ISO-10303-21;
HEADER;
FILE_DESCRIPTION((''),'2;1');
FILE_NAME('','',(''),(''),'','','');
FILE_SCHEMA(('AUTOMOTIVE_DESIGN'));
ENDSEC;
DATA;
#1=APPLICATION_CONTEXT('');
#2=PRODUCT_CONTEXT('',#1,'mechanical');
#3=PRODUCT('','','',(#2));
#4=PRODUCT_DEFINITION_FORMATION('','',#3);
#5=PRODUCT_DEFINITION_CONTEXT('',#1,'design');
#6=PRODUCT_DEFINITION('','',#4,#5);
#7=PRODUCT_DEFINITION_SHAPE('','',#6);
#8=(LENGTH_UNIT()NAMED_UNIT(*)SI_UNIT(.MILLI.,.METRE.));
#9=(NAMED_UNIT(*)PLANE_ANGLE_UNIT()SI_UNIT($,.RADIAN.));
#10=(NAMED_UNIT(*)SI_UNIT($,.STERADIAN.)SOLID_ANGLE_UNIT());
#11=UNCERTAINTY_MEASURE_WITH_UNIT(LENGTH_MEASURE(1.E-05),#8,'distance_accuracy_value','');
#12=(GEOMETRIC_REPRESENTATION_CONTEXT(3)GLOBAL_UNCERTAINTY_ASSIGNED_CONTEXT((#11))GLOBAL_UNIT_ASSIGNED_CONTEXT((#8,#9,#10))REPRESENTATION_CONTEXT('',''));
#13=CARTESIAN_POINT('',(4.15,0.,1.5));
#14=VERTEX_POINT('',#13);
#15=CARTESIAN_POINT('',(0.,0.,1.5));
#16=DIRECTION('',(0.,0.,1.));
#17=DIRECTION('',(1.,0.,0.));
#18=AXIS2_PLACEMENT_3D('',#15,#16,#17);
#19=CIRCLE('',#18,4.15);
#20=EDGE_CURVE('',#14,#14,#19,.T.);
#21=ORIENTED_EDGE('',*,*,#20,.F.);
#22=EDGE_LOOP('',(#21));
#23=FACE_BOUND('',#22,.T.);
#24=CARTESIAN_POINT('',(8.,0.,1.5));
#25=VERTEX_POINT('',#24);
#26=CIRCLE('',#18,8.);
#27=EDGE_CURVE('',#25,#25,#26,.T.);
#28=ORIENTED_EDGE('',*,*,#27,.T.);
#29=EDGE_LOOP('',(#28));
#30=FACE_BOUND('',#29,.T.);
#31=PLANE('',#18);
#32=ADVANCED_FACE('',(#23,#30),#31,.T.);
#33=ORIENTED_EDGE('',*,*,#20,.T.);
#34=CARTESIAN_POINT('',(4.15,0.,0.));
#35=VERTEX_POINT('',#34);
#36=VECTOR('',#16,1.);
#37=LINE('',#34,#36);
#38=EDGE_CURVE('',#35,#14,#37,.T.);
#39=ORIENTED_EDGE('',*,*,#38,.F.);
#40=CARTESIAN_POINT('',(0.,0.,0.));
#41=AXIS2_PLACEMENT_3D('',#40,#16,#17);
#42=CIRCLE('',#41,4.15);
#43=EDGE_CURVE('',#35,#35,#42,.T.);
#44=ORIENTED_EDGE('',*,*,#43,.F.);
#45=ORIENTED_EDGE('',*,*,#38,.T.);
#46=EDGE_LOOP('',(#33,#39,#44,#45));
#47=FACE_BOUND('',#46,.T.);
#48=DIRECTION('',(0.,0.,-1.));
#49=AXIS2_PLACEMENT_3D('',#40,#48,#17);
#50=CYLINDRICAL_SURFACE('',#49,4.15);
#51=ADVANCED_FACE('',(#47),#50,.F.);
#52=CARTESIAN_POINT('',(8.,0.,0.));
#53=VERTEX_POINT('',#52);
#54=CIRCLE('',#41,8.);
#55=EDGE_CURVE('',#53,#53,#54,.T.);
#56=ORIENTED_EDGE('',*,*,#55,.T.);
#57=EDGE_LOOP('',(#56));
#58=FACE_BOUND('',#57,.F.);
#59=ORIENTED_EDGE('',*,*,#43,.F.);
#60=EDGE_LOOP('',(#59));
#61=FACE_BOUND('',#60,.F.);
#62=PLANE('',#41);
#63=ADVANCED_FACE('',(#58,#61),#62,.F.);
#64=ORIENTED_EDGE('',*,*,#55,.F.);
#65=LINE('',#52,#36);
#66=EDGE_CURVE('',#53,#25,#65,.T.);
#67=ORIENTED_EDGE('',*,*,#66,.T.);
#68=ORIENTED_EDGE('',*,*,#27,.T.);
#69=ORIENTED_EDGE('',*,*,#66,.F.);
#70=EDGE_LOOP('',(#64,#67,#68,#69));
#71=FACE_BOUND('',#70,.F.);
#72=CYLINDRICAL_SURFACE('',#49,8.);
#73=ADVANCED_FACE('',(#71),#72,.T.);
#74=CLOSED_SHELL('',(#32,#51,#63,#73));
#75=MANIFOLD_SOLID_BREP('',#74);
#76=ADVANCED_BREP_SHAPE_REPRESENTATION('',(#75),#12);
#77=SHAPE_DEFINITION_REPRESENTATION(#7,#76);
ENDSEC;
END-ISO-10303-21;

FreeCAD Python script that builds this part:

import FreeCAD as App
import Part
import Sketcher
from FreeCAD import Vector
Q = App.Units.Quantity

doc = App.newDocument("Part")
body = doc.addObject("PartDesign::Body", "Body")

# Sketch on XY plane
sketch1 = body.newObject("Sketcher::SketchObject", "Sketch")
sketch1.AttachmentSupport = (doc.getObject("XY_Plane"), [""])
sketch1.MapMode = "FlatFace"
sketch1.addGeometry([
    Part.Circle(Vector(0, 0, 0), Vector(0, 0, 1), 8),
    Part.Circle(Vector(0, 0, 0), Vector(0, 0, 1), 4.2),
], False)
sketch1.addConstraint([
    Sketcher.Constraint("Coincident", 0, 3, -1, 1),
    Sketcher.Constraint("Coincident", 1, 3, -1, 1),
    Sketcher.Constraint("Diameter", 0, Q("16 mm")),
    Sketcher.Constraint("Diameter", 1, Q("8.3 mm")),
])
pad1 = body.newObject("PartDesign::Pad", "Pad")
pad1.Profile = sketch1
pad1.Length = 1.5

doc.recompute()
